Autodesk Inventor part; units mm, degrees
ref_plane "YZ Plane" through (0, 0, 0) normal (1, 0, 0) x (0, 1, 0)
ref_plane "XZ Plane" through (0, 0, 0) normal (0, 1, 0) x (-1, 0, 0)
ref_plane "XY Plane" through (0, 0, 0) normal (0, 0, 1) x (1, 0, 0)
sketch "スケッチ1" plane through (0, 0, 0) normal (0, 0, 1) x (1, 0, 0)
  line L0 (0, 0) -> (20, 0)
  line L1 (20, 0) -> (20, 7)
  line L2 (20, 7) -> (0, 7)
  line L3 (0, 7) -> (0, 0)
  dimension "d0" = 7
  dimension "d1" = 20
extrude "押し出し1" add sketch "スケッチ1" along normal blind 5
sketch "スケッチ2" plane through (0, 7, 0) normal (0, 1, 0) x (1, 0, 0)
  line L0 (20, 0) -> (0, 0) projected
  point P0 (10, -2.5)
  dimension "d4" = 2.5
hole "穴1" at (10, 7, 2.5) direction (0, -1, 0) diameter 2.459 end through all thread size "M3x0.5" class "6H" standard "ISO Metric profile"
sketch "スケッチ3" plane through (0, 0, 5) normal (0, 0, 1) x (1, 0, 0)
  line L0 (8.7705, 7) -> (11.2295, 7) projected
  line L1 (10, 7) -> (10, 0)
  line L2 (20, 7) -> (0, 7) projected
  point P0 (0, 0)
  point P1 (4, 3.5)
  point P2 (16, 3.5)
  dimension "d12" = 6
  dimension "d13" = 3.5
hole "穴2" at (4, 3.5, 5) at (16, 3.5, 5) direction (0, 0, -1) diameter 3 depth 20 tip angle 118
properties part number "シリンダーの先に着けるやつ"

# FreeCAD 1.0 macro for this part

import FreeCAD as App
import Part
import Sketcher

V = App.Vector
Q = App.Units.Quantity


def add_polygon(sketch, points):
    """Adds a closed chain of lines whose ends are joined by coincident constraints."""
    first, n = sketch.GeometryCount, len(points)
    for a, b in zip(points, points[1:] + points[:1]):
        sketch.addGeometry(Part.LineSegment(App.Vector(*a, 0), App.Vector(*b, 0)), False)
    for i in range(n):
        sketch.addConstraint(Sketcher.Constraint("Coincident", first + i, 2, first + (i + 1) % n, 1))

doc = App.newDocument("Part")
params = doc.addObject("Spreadsheet::Sheet", "Params")
for row, (alias, value) in enumerate([
    ("sketch1_width", "20 mm"),
    ("sketch1_height", "7 mm"),
    ("pad1_length", "5 mm"),
    ("hole_diameter", "2.459 mm"),
    ("sketch3_diameter", "3 mm"),
    ("hole2_diameter", "3 mm"),
    ("hole2_depth", "20 mm"),
], start=1):
    params.set(f"A{row}", alias)
    params.set(f"B{row}", "=" + value)
    params.setAlias(f"B{row}", alias)

body = doc.addObject("PartDesign::Body", "Body")

sketch1 = body.newObject("Sketcher::SketchObject", "Sketch")
sketch1.AttachmentSupport = (doc.getObject("XY_Plane"), [""])
sketch1.MapMode = "FlatFace"
add_polygon(sketch1, [(0, 7), (0, 0), (20, 0), (20, 7)])
sketch1.addConstraint([
    Sketcher.Constraint("Vertical", 0),
    Sketcher.Constraint("Horizontal", 1),
    Sketcher.Constraint("Vertical", 2),
    Sketcher.Constraint("Horizontal", 3),
    Sketcher.Constraint("Coincident", 0, 2, -1, 1),
    Sketcher.Constraint("DistanceX", 1, 1, 1, 2, Q("20 mm")),
    Sketcher.Constraint("DistanceY", 0, 2, 0, 1, Q("7 mm")),
])
sketch1.setExpression("Constraints[9]", "Params.sketch1_width")
sketch1.setExpression("Constraints[10]", "Params.sketch1_height")
pad1 = body.newObject("PartDesign::Pad", "Pad")
pad1.Profile = sketch1
pad1.setExpression("Length", "Params.pad1_length")

sketch2 = body.newObject("Sketcher::SketchObject", "Sketch001")
sketch2.AttachmentSupport = (doc.getObject("XZ_Plane"), [""])
sketch2.MapMode = "FlatFace"
sketch2.AttachmentOffset = App.Placement(V(0, 0, -7), App.Rotation())
sketch2.addGeometry(Part.Circle(V(10, 2.5, 0), V(0, 0, 1), 1.2), False)
sketch2.addConstraint([
    Sketcher.Constraint("Diameter", 0, Q("2.459 mm")),
    Sketcher.Constraint("DistanceX", -1, 1, 0, 3, Q("10 mm")),
    Sketcher.Constraint("DistanceY", -1, 1, 0, 3, Q("2.5 mm")),
])
doc.recompute()
hole = body.newObject("PartDesign::Hole", "Hole")
hole.Profile = sketch2
hole.ThreadType = "None"
hole.setExpression("Diameter", "Params.hole_diameter")
hole.DepthType = "ThroughAll"
hole.Reversed = True

sketch3 = body.newObject("Sketcher::SketchObject", "Sketch002")
sketch3.AttachmentSupport = (doc.getObject("XY_Plane"), [""])
sketch3.MapMode = "FlatFace"
sketch3.AttachmentOffset = App.Placement(V(0, 0, 5), App.Rotation())
sketch3.addGeometry([
    Part.Circle(V(4, 3.5, 0), V(0, 0, 1), 1.5),
    Part.Circle(V(16, 3.5, 0), V(0, 0, 1), 1.5),
], False)
sketch3.addConstraint([
    Sketcher.Constraint("Equal", 0, 1),
    Sketcher.Constraint("Horizontal", 0, 3, 1, 3),
    Sketcher.Constraint("Diameter", 0, Q("3 mm")),
    Sketcher.Constraint("DistanceX", -1, 1, 0, 3, Q("4 mm")),
    Sketcher.Constraint("DistanceX", -1, 1, 1, 3, Q("16 mm")),
    Sketcher.Constraint("DistanceY", -1, 1, 0, 3, Q("3.5 mm")),
])
sketch3.setExpression("Constraints[2]", "Params.sketch3_diameter")
doc.recompute()
hole2 = body.newObject("PartDesign::Hole", "Hole001")
hole2.Profile = sketch3
hole2.ThreadType = "None"
hole2.setExpression("Diameter", "Params.hole2_diameter")
hole2.DepthType = "Dimension"
hole2.setExpression("Depth", "Params.hole2_depth")
hole2.DrillPoint = "Angled"
hole2.DrillPointAngle = 118

doc.recompute()
